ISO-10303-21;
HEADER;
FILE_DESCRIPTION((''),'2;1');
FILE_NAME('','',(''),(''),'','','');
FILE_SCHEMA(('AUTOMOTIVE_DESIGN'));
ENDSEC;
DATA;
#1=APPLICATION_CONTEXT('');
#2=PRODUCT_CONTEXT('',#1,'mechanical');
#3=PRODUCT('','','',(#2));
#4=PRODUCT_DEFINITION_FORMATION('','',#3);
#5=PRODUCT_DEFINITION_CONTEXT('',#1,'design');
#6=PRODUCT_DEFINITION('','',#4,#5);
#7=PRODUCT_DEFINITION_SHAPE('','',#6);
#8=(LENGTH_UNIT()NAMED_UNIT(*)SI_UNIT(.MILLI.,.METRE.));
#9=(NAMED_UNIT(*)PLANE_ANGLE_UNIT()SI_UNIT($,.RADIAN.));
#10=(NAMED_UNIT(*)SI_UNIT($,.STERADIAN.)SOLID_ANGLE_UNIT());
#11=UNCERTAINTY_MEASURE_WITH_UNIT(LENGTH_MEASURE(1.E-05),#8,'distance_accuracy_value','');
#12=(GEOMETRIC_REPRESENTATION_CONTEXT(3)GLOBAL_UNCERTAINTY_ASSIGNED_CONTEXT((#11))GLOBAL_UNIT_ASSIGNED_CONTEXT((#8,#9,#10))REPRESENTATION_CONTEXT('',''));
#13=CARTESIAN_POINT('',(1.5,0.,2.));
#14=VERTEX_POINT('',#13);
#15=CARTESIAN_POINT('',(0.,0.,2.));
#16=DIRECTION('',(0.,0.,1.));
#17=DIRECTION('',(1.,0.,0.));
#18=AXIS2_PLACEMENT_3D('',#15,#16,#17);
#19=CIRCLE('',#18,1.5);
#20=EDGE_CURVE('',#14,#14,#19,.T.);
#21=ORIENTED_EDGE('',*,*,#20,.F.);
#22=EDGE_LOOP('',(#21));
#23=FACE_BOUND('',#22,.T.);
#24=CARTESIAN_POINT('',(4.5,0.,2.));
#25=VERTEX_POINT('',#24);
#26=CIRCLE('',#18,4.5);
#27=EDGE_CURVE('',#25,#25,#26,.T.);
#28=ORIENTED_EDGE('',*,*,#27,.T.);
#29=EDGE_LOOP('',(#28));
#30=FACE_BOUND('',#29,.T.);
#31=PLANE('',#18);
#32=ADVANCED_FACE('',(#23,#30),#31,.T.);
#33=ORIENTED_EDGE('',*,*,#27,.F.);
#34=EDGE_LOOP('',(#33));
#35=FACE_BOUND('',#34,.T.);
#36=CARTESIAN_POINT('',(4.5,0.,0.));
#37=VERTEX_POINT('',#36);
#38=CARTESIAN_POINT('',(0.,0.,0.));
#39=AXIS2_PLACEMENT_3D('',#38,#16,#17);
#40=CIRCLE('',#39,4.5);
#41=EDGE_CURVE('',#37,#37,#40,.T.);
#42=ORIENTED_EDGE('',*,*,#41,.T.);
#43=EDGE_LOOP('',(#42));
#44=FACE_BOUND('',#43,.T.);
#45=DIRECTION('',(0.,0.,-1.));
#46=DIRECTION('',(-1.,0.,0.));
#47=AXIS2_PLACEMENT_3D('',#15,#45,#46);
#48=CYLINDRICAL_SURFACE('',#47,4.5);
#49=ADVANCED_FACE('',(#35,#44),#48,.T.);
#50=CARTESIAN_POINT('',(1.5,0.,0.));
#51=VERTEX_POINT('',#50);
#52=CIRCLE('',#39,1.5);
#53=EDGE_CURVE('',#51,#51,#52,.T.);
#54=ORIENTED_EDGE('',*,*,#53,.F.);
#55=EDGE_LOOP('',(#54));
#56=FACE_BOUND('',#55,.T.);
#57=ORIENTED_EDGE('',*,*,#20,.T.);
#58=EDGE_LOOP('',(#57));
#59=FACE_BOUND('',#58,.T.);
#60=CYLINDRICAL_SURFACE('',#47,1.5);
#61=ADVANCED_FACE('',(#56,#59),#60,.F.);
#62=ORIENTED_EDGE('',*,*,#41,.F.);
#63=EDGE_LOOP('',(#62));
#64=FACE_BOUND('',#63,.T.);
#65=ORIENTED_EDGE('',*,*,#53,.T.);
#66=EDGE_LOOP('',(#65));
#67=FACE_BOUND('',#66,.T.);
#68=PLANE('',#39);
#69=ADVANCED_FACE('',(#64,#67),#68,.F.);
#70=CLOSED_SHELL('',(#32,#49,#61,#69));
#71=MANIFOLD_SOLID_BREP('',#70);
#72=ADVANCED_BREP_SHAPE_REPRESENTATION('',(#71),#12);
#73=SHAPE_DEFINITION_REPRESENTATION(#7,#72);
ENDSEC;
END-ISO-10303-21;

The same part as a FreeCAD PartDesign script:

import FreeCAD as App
import Part
import Sketcher
from FreeCAD import Vector
Q = App.Units.Quantity

doc = App.newDocument("Part")
body = doc.addObject("PartDesign::Body", "Body")

# Sketch on XY plane
sketch1 = body.newObject("Sketcher::SketchObject", "Sketch")
sketch1.AttachmentSupport = (doc.getObject("XY_Plane"), [""])
sketch1.MapMode = "FlatFace"
sketch1.addGeometry(Part.Circle(Vector(0, 0, 0), Vector(0, 0, 1), 4.5), False)
sketch1.addGeometry(Part.Circle(Vector(0, 0, 0), Vector(0, 0, 1), 1.5), False)
sketch1.addConstraint(Sketcher.Constraint("Coincident", 0, 3, -1, 1))
sketch1.addConstraint(Sketcher.Constraint("Coincident", 1, 3, -1, 1))
sketch1.addConstraint(Sketcher.Constraint("Diameter", 0, Q("9 mm")))
sketch1.addConstraint(Sketcher.Constraint("Diameter", 1, Q("3 mm")))
pad1 = body.newObject("PartDesign::Pad", "Pad")
pad1.Profile = sketch1
pad1.Length = 2

doc.recompute()
